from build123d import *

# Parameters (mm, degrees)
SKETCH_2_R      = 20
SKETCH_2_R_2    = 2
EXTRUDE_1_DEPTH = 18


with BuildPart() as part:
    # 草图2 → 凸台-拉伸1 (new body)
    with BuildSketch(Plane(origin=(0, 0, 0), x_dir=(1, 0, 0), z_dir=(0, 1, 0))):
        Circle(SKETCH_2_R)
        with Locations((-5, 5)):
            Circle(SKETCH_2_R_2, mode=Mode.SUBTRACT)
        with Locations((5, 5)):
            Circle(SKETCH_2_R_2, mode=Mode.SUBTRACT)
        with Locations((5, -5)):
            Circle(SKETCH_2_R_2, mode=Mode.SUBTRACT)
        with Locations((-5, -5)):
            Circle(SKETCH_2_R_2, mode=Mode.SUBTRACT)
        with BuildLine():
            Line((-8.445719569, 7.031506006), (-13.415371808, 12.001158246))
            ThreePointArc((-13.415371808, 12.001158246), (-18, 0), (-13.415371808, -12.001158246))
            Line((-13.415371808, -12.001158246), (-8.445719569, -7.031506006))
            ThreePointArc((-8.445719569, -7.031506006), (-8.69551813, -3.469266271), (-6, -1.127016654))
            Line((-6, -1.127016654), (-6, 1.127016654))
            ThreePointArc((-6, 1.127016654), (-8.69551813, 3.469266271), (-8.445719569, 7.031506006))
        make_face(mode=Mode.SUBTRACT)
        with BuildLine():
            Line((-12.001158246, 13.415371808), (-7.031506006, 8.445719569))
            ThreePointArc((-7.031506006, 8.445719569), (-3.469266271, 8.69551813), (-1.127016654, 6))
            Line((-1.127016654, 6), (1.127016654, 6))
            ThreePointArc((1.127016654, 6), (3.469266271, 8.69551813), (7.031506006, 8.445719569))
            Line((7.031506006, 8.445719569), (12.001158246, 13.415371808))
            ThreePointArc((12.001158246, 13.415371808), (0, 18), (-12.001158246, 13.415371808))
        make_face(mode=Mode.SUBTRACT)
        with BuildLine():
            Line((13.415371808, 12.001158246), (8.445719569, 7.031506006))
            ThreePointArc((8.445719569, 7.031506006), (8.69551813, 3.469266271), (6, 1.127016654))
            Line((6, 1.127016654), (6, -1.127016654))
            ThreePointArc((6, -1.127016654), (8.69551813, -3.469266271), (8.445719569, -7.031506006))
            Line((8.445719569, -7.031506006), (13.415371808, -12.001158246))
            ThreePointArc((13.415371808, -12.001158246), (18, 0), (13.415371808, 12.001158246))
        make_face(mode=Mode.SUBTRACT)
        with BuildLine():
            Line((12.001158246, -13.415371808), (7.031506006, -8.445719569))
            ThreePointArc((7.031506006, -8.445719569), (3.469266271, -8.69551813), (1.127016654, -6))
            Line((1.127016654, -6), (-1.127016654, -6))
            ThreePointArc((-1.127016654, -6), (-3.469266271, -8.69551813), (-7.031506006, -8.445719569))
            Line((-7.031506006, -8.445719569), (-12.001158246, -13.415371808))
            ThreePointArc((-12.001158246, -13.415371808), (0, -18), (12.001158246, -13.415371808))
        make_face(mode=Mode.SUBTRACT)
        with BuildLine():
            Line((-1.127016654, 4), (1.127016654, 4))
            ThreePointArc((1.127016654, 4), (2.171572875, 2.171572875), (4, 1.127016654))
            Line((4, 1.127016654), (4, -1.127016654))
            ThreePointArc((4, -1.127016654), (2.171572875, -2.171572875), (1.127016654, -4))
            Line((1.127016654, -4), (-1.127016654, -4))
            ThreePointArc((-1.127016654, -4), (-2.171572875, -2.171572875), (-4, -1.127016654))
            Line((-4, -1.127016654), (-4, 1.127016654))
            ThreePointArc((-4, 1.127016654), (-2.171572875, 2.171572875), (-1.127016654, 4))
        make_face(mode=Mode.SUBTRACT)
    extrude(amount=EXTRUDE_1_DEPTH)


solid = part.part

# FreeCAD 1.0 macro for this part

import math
import FreeCAD as App
import Part
import Sketcher

doc = App.newDocument("Part")
body = doc.addObject("PartDesign::Body", "Body")

# Sketch on XZ plane
sketch1 = body.newObject("Sketcher::SketchObject", "Sketch")
sketch1.AttachmentSupport = (doc.getObject("XZ_Plane"), [""])
sketch1.MapMode = "FlatFace"
sketch1.addGeometry([
    Part.Circle(App.Vector(0, 0, 0), App.Vector(0, 0, 1), 20),  # 0
    Part.LineSegment(App.Vector(7, 8.4, 0), App.Vector(12, 13.4, 0)),  # 1
    Part.ArcOfCircle(Part.Circle(App.Vector(0, 0, 0), App.Vector(0, 0, 1), 18), math.radians(48), math.radians(132)),  # 2
    Part.LineSegment(App.Vector(-12, 13.4, 0), App.Vector(-7, 8.4, 0)),  # 3
    Part.ArcOfCircle(Part.Circle(App.Vector(-5, 5, 0), App.Vector(0, 0, 1), 4), math.radians(14), math.radians(121)),  # 4
    Part.LineSegment(App.Vector(-1.1, 6, 0), App.Vector(1.1, 6, 0)),  # 5
    Part.ArcOfCircle(Part.Circle(App.Vector(5, 5, 0), App.Vector(0, 0, 1), 4), math.radians(59), math.radians(166)),  # 6
    Part.Circle(App.Vector(-5, 5, 0), App.Vector(0, 0, 1), 2),  # 7
    Part.Circle(App.Vector(5, 5, 0), App.Vector(0, 0, 1), 2),  # 8
    Part.LineSegment(App.Vector(-13.4, -12, 0), App.Vector(-8.4, -7, 0)),  # 9
    Part.ArcOfCircle(Part.Circle(App.Vector(-5, -5, 0), App.Vector(0, 0, 1), 4), math.radians(104), math.radians(211)),  # 10
    Part.LineSegment(App.Vector(-6, -1.1, 0), App.Vector(-6, 1.1, 0)),  # 11
    Part.ArcOfCircle(Part.Circle(App.Vector(-5, 5, 0), App.Vector(0, 0, 1), 4), math.radians(149), math.radians(256)),  # 12
    Part.LineSegment(App.Vector(-8.4, 7, 0), App.Vector(-13.4, 12, 0)),  # 13
    Part.ArcOfCircle(Part.Circle(App.Vector(0, 0, 0), App.Vector(0, 0, 1), 18), math.radians(138), math.radians(222)),  # 14
    Part.ArcOfCircle(Part.Circle(App.Vector(-5, -5, 0), App.Vector(0, 0, 1), 4), math.radians(14), math.radians(76)),  # 15
    Part.LineSegment(App.Vector(-1.1, -4, 0), App.Vector(1.1, -4, 0)),  # 16
    Part.ArcOfCircle(Part.Circle(App.Vector(5, -5, 0), App.Vector(0, 0, 1), 4), math.radians(104), math.radians(166)),  # 17
    Part.LineSegment(App.Vector(4, -1.1, 0), App.Vector(4, 1.1, 0)),  # 18
    Part.ArcOfCircle(Part.Circle(App.Vector(5, 5, 0), App.Vector(0, 0, 1), 4), math.radians(-166), math.radians(-104)),  # 19
    Part.LineSegment(App.Vector(1.1, 4, 0), App.Vector(-1.1, 4, 0)),  # 20
    Part.ArcOfCircle(Part.Circle(App.Vector(-5, 5, 0), App.Vector(0, 0, 1), 4), math.radians(-76), math.radians(-14)),  # 21
    Part.LineSegment(App.Vector(-4, 1.1, 0), App.Vector(-4, -1.1, 0)),  # 22
    Part.Circle(App.Vector(-5, -5, 0), App.Vector(0, 0, 1), 2),  # 23
    Part.Circle(App.Vector(5, -5, 0), App.Vector(0, 0, 1), 2),  # 24
    Part.LineSegment(App.Vector(8.4, -7, 0), App.Vector(13.4, -12, 0)),  # 25
    Part.ArcOfCircle(Part.Circle(App.Vector(0, 0, 0), App.Vector(0, 0, 1), 18), math.radians(-42), math.radians(42)),  # 26
    Part.LineSegment(App.Vector(13.4, 12, 0), App.Vector(8.4, 7, 0)),  # 27
    Part.ArcOfCircle(Part.Circle(App.Vector(5, 5, 0), App.Vector(0, 0, 1), 4), math.radians(-76), math.radians(31)),  # 28
    Part.LineSegment(App.Vector(6, 1.1, 0), App.Vector(6, -1.1, 0)),  # 29
    Part.ArcOfCircle(Part.Circle(App.Vector(5, -5, 0), App.Vector(0, 0, 1), 4), math.radians(-31), math.radians(76)),  # 30
    Part.LineSegment(App.Vector(-7, -8.4, 0), App.Vector(-12, -13.4, 0)),  # 31
    Part.ArcOfCircle(Part.Circle(App.Vector(0, 0, 0), App.Vector(0, 0, 1), 18), math.radians(-132), math.radians(-48)),  # 32
    Part.LineSegment(App.Vector(12, -13.4, 0), App.Vector(7, -8.4, 0)),  # 33
    Part.ArcOfCircle(Part.Circle(App.Vector(5, -5, 0), App.Vector(0, 0, 1), 4), math.radians(-166), math.radians(-59)),  # 34
    Part.LineSegment(App.Vector(1.1, -6, 0), App.Vector(-1.1, -6, 0)),  # 35
    Part.ArcOfCircle(Part.Circle(App.Vector(-5, -5, 0), App.Vector(0, 0, 1), 4), math.radians(-121), math.radians(-14)),  # 36
], False)
sketch1.addConstraint([
    Sketcher.Constraint("Coincident", 1, 2, 2, 1),
    Sketcher.Constraint("Coincident", 2, 2, 3, 1),
    Sketcher.Constraint("Coincident", 3, 2, 4, 2),
    Sketcher.Constraint("Coincident", 4, 1, 5, 1),
    Sketcher.Constraint("Coincident", 5, 2, 6, 2),
    Sketcher.Constraint("Coincident", 6, 1, 1, 1),
    Sketcher.Constraint("Coincident", 9, 2, 10, 2),
    Sketcher.Constraint("Coincident", 10, 1, 11, 1),
    Sketcher.Constraint("Coincident", 11, 2, 12, 2),
    Sketcher.Constraint("Coincident", 12, 1, 13, 1),
    Sketcher.Constraint("Coincident", 13, 2, 14, 1),
    Sketcher.Constraint("Coincident", 14, 2, 9, 1),
    Sketcher.Constraint("Coincident", 15, 1, 16, 1),
    Sketcher.Constraint("Coincident", 16, 2, 17, 2),
    Sketcher.Constraint("Coincident", 17, 1, 18, 1),
    Sketcher.Constraint("Coincident", 18, 2, 19, 2),
    Sketcher.Constraint("Coincident", 19, 1, 20, 1),
    Sketcher.Constraint("Coincident", 20, 2, 21, 2),
    Sketcher.Constraint("Coincident", 21, 1, 22, 1),
    Sketcher.Constraint("Coincident", 22, 2, 15, 2),
    Sketcher.Constraint("Coincident", 25, 2, 26, 1),
    Sketcher.Constraint("Coincident", 26, 2, 27, 1),
    Sketcher.Constraint("Coincident", 27, 2, 28, 2),
    Sketcher.Constraint("Coincident", 28, 1, 29, 1),
    Sketcher.Constraint("Coincident", 29, 2, 30, 2),
    Sketcher.Constraint("Coincident", 30, 1, 25, 1),
    Sketcher.Constraint("Coincident", 31, 2, 32, 1),
    Sketcher.Constraint("Coincident", 32, 2, 33, 1),
    Sketcher.Constraint("Coincident", 33, 2, 34, 2),
    Sketcher.Constraint("Coincident", 34, 1, 35, 1),
    Sketcher.Constraint("Coincident", 35, 2, 36, 2),
    Sketcher.Constraint("Coincident", 36, 1, 31, 1),
    Sketcher.Constraint("Horizontal", 5),
    Sketcher.Constraint("Vertical", 11),
    Sketcher.Constraint("Horizontal", 16),
    Sketcher.Constraint("Vertical", 18),
    Sketcher.Constraint("Horizontal", 20),
    Sketcher.Constraint("Vertical", 22),
    Sketcher.Constraint("Vertical", 29),
    Sketcher.Constraint("Horizontal", 35),
    Sketcher.Constraint("Coincident", 0, 3, -1, 1),
    Sketcher.Constraint("Coincident", 2, 3, -1, 1),
    Sketcher.Constraint("Coincident", 14, 3, -1, 1),
    Sketcher.Constraint("Coincident", 26, 3, -1, 1),
    Sketcher.Constraint("Coincident", 32, 3, -1, 1),
    Sketcher.Constraint("Coincident", 7, 3, 4, 3),
    Sketcher.Constraint("Coincident", 8, 3, 6, 3),
    Sketcher.Constraint("Coincident", 12, 3, 4, 3),
    Sketcher.Constraint("Coincident", 15, 3, 10, 3),
    Sketcher.Constraint("Coincident", 19, 3, 6, 3),
    Sketcher.Constraint("Coincident", 21, 3, 4, 3),
    Sketcher.Constraint("Coincident", 23, 3, 10, 3),
    Sketcher.Constraint("Coincident", 24, 3, 17, 3),
    Sketcher.Constraint("Coincident", 28, 3, 6, 3),
    Sketcher.Constraint("Coincident", 30, 3, 17, 3),
    Sketcher.Constraint("Coincident", 34, 3, 17, 3),
    Sketcher.Constraint("Coincident", 36, 3, 10, 3),
    Sketcher.Constraint("Equal", 4, 6),
    Sketcher.Constraint("Equal", 7, 8),
    Sketcher.Constraint("Equal", 6, 10),
    Sketcher.Constraint("Equal", 10, 12),
    Sketcher.Constraint("Equal", 2, 14),
    Sketcher.Constraint("Equal", 12, 15),
    Sketcher.Constraint("Equal", 15, 17),
    Sketcher.Constraint("Equal", 17, 19),
    Sketcher.Constraint("Equal", 19, 21),
    Sketcher.Constraint("Equal", 8, 23),
    Sketcher.Constraint("Equal", 23, 24),
    Sketcher.Constraint("Equal", 14, 26),
    Sketcher.Constraint("Equal", 21, 28),
    Sketcher.Constraint("Equal", 28, 30),
    Sketcher.Constraint("Equal", 26, 32),
    Sketcher.Constraint("Equal", 30, 34),
    Sketcher.Constraint("Equal", 34, 36),
    Sketcher.Constraint("Symmetric", 6, 3, 10, 3, -1, 1),
    Sketcher.Constraint("Symmetric", 4, 3, 17, 3, -1, 1),
    Sketcher.Constraint("Symmetric", 4, 3, 6, 3, -2),
    Sketcher.Constraint("Perpendicular", 1, 3),
    Sketcher.Constraint("Perpendicular", 3, 9),
    Sketcher.Constraint("Perpendicular", 9, 13),
    Sketcher.Constraint("Parallel", 13, 25),
    Sketcher.Constraint("Perpendicular", 25, 27),
    Sketcher.Constraint("Parallel", 27, 31),
    Sketcher.Constraint("Perpendicular", 31, 33),
    Sketcher.Constraint("Horizontal", 1, 2, 2, 2),
    Sketcher.Constraint("Horizontal", 3, 2, 6, 1),
    Sketcher.Constraint("Horizontal", 10, 1, 17, 1),
    Sketcher.Constraint("Horizontal", 18, 2, 21, 1),
    Sketcher.Constraint("Horizontal", 14, 2, 25, 2),
    Sketcher.Constraint("Horizontal", 13, 2, 26, 2),
    Sketcher.Constraint("Horizontal", 21, 1, 28, 1),
    Sketcher.Constraint("Horizontal", 31, 2, 32, 2),
    Sketcher.Constraint("Vertical", 9, 2, 12, 1),
    Sketcher.Constraint("Vertical", 4, 1, 15, 1),
    Sketcher.Constraint("Vertical", 16, 2, 19, 1),
    Sketcher.Constraint("Vertical", 2, 2, 31, 2),
    Sketcher.Constraint("Vertical", 19, 1, 34, 1),
    Sketcher.Constraint("Equal", 35, 11),
    Sketcher.Constraint("Equal", 3, 9),
    Sketcher.Constraint("Diameter", 0, 40.0),
    Sketcher.Constraint("Diameter", 7, 4.0),
    Sketcher.Constraint("Radius", 2, 18.0),
    Sketcher.Constraint("Radius", 4, 4.0),
    Sketcher.Constraint("DistanceX", 4, 3, -1, 1, 5.0),
    Sketcher.Constraint("DistanceY", -1, 1, 4, 3, 5.0),
    Sketcher.Constraint("DistanceY", -1, 1, 4, 1, 6.0),
    Sketcher.Constraint("Distance", 1, 7.02815),
])
pad1 = body.newObject("PartDesign::Pad", "Pad")
pad1.Profile = sketch1
pad1.Length = 18
pad1.Reversed = True

doc.recompute()
